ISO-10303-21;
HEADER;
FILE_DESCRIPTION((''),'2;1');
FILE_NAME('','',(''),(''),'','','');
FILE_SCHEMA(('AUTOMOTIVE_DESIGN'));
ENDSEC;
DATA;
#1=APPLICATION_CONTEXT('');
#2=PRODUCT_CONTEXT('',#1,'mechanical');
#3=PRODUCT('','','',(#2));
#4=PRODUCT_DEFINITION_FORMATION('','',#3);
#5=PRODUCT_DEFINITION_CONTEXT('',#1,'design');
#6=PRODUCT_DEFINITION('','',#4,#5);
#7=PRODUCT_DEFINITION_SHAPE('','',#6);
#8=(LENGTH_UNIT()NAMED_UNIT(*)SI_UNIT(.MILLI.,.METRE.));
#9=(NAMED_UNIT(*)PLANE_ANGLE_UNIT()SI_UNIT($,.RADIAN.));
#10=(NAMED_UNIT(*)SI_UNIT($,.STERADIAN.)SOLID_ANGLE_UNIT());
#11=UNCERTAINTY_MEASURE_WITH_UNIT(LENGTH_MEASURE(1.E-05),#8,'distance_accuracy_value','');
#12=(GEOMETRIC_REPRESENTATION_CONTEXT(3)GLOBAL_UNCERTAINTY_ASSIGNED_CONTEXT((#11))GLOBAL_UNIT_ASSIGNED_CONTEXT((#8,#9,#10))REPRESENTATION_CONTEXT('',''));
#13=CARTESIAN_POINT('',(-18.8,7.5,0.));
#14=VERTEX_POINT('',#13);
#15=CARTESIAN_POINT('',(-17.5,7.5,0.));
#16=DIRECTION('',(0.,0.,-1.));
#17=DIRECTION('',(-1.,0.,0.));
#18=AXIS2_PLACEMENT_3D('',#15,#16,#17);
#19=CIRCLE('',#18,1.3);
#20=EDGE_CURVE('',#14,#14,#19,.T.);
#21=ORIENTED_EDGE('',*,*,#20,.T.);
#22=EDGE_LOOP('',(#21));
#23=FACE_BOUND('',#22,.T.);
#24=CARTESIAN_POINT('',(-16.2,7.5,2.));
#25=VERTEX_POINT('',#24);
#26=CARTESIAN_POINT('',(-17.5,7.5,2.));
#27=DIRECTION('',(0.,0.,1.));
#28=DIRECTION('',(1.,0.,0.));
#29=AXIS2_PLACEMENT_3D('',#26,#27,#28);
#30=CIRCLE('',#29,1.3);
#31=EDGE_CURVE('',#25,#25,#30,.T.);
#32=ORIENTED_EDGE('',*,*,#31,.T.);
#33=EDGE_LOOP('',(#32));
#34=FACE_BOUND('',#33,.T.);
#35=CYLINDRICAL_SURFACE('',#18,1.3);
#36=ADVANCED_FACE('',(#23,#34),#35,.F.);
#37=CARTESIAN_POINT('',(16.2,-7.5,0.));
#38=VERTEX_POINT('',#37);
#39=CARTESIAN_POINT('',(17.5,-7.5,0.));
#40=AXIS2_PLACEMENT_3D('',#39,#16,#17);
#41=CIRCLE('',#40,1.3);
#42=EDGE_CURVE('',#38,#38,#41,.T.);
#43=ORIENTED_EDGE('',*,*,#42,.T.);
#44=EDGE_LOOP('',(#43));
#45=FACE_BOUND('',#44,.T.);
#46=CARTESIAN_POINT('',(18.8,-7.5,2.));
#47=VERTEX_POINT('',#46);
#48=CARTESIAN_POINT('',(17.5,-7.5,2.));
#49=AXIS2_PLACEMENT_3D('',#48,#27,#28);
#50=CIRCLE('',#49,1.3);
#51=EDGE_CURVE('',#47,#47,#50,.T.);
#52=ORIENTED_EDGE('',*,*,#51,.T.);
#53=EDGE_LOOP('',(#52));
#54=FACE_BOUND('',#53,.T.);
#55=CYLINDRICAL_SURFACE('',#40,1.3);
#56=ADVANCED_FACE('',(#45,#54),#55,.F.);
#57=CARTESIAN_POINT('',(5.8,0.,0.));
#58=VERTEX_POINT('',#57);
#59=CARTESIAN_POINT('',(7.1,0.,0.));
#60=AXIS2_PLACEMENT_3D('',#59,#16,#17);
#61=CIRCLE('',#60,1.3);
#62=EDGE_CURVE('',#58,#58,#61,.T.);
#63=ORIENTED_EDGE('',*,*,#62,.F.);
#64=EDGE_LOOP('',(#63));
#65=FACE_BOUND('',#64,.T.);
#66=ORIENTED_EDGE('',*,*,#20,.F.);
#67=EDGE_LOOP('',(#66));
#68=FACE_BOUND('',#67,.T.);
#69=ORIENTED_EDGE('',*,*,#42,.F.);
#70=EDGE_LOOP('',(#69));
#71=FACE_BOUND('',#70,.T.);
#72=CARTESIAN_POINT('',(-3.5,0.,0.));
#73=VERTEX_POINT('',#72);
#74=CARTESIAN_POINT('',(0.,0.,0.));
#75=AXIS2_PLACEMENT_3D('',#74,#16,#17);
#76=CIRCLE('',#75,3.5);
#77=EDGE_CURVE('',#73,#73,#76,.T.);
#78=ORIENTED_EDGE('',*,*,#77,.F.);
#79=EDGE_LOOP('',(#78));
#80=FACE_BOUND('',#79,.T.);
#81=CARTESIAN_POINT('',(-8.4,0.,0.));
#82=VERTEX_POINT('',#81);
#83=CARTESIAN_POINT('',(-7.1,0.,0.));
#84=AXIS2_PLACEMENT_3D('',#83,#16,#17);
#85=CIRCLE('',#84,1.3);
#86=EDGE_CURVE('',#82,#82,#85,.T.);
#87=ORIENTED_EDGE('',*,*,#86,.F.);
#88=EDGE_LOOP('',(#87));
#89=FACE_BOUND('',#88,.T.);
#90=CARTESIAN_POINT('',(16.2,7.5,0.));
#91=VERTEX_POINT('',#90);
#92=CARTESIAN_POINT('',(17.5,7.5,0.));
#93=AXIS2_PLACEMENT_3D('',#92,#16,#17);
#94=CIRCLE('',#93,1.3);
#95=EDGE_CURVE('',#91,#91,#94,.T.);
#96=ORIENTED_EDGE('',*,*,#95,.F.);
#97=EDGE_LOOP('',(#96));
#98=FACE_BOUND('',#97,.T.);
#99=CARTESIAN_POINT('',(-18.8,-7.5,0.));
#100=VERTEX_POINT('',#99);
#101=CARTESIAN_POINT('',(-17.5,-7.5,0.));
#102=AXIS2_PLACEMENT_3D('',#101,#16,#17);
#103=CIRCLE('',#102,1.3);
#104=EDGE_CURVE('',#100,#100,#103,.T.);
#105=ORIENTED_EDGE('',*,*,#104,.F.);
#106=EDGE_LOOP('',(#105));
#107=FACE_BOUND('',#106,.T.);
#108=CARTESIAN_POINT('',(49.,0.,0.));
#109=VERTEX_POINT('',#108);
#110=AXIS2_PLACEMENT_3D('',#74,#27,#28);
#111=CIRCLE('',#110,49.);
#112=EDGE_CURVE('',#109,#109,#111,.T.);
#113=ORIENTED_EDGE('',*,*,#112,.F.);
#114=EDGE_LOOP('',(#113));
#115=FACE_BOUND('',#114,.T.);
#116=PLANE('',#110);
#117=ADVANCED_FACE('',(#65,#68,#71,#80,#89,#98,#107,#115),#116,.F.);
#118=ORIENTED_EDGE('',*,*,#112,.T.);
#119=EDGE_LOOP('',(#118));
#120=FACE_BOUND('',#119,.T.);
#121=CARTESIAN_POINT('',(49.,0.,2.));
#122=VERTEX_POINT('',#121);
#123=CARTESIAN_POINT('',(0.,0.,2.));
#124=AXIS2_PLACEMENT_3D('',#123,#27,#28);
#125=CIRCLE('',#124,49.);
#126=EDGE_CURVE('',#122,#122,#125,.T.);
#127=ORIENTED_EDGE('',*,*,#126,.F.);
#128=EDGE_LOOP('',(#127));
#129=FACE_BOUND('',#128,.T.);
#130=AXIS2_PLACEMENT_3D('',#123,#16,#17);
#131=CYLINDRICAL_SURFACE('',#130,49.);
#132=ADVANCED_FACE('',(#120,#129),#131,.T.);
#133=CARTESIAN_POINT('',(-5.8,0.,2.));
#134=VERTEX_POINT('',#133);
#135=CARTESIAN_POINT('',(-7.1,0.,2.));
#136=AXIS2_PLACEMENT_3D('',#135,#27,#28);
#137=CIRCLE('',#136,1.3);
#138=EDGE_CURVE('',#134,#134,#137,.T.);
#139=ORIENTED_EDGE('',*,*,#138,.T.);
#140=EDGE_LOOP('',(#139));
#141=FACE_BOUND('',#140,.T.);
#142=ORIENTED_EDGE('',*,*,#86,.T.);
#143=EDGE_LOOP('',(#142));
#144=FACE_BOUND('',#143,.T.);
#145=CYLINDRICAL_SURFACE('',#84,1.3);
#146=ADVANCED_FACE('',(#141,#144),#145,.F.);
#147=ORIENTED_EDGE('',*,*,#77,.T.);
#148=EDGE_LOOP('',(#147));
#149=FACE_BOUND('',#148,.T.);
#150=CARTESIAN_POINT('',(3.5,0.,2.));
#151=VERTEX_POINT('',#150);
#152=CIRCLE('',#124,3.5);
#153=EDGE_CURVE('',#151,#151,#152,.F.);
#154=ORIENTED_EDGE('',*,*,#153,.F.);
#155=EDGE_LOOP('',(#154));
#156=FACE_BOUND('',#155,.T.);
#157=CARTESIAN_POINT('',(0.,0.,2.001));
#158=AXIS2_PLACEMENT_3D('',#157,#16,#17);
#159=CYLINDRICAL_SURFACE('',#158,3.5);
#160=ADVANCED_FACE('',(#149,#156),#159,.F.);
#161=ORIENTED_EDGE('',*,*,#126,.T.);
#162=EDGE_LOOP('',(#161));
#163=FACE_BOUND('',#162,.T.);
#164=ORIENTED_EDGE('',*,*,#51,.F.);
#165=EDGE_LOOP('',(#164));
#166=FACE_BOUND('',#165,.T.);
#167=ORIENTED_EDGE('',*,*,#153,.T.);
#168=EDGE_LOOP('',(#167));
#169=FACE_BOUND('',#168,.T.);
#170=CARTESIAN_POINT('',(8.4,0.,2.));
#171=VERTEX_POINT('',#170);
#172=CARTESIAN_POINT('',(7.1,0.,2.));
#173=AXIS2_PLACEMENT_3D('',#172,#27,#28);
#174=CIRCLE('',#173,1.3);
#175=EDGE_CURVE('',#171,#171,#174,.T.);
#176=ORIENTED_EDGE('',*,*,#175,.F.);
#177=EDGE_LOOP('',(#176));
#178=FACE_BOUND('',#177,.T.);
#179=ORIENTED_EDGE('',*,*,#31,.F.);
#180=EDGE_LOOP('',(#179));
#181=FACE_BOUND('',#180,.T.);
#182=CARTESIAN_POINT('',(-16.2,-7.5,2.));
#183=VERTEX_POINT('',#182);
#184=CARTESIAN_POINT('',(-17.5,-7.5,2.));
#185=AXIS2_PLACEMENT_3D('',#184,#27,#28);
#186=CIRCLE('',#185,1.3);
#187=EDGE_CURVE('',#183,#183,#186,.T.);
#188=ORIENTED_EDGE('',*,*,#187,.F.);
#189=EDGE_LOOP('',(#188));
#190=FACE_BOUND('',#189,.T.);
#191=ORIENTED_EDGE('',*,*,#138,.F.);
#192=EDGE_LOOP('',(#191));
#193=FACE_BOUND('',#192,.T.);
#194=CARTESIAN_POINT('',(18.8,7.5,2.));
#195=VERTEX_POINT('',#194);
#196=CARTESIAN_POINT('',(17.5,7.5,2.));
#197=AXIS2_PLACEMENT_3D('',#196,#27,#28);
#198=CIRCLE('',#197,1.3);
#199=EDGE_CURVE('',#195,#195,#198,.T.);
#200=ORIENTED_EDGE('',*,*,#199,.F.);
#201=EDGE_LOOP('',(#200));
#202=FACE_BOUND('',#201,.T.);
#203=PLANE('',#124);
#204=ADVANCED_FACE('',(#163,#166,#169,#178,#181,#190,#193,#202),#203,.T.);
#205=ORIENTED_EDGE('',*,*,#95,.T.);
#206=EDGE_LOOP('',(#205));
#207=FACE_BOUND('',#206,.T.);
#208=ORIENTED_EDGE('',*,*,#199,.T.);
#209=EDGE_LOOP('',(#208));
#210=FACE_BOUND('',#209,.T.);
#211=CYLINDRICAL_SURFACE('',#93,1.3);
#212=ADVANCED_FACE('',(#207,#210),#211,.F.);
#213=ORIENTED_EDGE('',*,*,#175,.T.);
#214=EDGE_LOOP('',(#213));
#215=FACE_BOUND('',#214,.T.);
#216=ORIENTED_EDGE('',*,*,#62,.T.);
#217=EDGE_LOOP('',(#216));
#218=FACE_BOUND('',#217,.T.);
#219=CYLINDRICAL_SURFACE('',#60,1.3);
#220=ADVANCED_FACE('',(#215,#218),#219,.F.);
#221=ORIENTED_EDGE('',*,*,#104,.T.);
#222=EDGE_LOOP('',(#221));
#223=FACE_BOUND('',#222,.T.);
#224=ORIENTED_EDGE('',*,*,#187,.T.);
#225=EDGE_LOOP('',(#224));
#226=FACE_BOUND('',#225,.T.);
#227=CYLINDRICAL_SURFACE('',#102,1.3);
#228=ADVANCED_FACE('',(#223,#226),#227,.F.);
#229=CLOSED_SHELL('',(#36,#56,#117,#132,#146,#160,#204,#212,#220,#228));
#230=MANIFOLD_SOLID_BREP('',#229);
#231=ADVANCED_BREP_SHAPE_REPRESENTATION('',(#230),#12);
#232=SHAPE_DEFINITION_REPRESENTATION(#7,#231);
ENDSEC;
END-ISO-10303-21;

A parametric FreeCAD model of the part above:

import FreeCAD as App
import Part
import Sketcher
Q = App.Units.Quantity

doc = App.newDocument("Part")
body = doc.addObject("PartDesign::Body", "Body")

sketch1 = body.newObject("Sketcher::SketchObject", "Sketch")
sketch1.AttachmentSupport = (doc.getObject("XY_Plane"), [""])
sketch1.MapMode = "FlatFace"
sketch1.addGeometry(Part.Circle(App.Vector(0, 0, 0), App.Vector(0, 0, 1), 49), False)
sketch1.addConstraint([
    Sketcher.Constraint("Coincident", 0, 3, -1, 1),
    Sketcher.Constraint("Diameter", 0, Q("98 mm")),
])
pad1 = body.newObject("PartDesign::Pad", "Pad")
pad1.Profile = sketch1
pad1.Length = 2

sketch2 = body.newObject("Sketcher::SketchObject", "Sketch001")
sketch2.AttachmentSupport = (doc.getObject("XY_Plane"), [""])
sketch2.MapMode = "FlatFace"
sketch2.addGeometry(Part.Circle(App.Vector(0, 0, 0), App.Vector(0, 0, 1), 3.5), False)
sketch2.addConstraint([
    Sketcher.Constraint("Coincident", 0, 3, -1, 1),
    Sketcher.Constraint("Diameter", 0, Q("7 mm")),
])
pocket1 = body.newObject("PartDesign::Pocket", "Pocket")
pocket1.Profile = sketch2
pocket1.Type = "UpToFirst"
pocket1.Reversed = True

sketch3 = body.newObject("Sketcher::SketchObject", "Sketch002")
sketch3.AttachmentSupport = (doc.getObject("XY_Plane"), [""])
sketch3.MapMode = "FlatFace"
sketch3.addGeometry([
    Part.Circle(App.Vector(-17.5, 7.5, 0), App.Vector(0, 0, 1), 1.3),
    Part.Circle(App.Vector(-17.5, -7.5, 0), App.Vector(0, 0, 1), 1.3),
    Part.Circle(App.Vector(17.5, -7.5, 0), App.Vector(0, 0, 1), 1.3),
    Part.Circle(App.Vector(17.5, 7.5, 0), App.Vector(0, 0, 1), 1.3),
], False)
sketch3.addConstraint([
    Sketcher.Constraint("Equal", 0, 1),
    Sketcher.Constraint("Equal", 1, 2),
    Sketcher.Constraint("Equal", 2, 3),
    Sketcher.Constraint("Symmetric", 0, 3, 2, 3, -1, 1),
    Sketcher.Constraint("Symmetric", 1, 3, 3, 3, -1, 1),
    Sketcher.Constraint("Symmetric", 1, 3, 2, 3, -2),
    Sketcher.Constraint("Diameter", 0, Q("2.6 mm")),
    Sketcher.Constraint("DistanceY", 1, 3, 0, 3, Q("15 mm")),
    Sketcher.Constraint("DistanceX", 1, 3, 2, 3, Q("35 mm")),
])
doc.recompute()
hole = body.newObject("PartDesign::Hole", "Hole")
hole.Profile = sketch3
hole.ThreadType = "None"
hole.Diameter = 2.6
hole.DepthType = "Dimension"
hole.Depth = 2
hole.DrillPoint = "Flat"
hole.Reversed = True

sketch4 = body.newObject("Sketcher::SketchObject", "Sketch003")
sketch4.AttachmentSupport = (doc.getObject("XY_Plane"), [""])
sketch4.MapMode = "FlatFace"
sketch4.addGeometry([
    Part.Circle(App.Vector(-7.1, 0, 0), App.Vector(0, 0, 1), 1.3),
    Part.Circle(App.Vector(7.1, 0, 0), App.Vector(0, 0, 1), 1.3),
], False)
sketch4.addConstraint([
    Sketcher.Constraint("Equal", 0, 1),
    Sketcher.Constraint("Symmetric", 0, 3, 1, 3, -1, 1),
    Sketcher.Constraint("PointOnObject", 0, 3, -1),
    Sketcher.Constraint("Diameter", 0, Q("2.6 mm")),
    Sketcher.Constraint("DistanceX", 0, 3, -1, 1, Q("7.1 mm")),
])
doc.recompute()
hole2 = body.newObject("PartDesign::Hole", "Hole001")
hole2.Profile = sketch4
hole2.ThreadType = "None"
hole2.Diameter = 2.6
hole2.DepthType = "Dimension"
hole2.Depth = 2
hole2.DrillPoint = "Flat"
hole2.Reversed = True

doc.recompute()
